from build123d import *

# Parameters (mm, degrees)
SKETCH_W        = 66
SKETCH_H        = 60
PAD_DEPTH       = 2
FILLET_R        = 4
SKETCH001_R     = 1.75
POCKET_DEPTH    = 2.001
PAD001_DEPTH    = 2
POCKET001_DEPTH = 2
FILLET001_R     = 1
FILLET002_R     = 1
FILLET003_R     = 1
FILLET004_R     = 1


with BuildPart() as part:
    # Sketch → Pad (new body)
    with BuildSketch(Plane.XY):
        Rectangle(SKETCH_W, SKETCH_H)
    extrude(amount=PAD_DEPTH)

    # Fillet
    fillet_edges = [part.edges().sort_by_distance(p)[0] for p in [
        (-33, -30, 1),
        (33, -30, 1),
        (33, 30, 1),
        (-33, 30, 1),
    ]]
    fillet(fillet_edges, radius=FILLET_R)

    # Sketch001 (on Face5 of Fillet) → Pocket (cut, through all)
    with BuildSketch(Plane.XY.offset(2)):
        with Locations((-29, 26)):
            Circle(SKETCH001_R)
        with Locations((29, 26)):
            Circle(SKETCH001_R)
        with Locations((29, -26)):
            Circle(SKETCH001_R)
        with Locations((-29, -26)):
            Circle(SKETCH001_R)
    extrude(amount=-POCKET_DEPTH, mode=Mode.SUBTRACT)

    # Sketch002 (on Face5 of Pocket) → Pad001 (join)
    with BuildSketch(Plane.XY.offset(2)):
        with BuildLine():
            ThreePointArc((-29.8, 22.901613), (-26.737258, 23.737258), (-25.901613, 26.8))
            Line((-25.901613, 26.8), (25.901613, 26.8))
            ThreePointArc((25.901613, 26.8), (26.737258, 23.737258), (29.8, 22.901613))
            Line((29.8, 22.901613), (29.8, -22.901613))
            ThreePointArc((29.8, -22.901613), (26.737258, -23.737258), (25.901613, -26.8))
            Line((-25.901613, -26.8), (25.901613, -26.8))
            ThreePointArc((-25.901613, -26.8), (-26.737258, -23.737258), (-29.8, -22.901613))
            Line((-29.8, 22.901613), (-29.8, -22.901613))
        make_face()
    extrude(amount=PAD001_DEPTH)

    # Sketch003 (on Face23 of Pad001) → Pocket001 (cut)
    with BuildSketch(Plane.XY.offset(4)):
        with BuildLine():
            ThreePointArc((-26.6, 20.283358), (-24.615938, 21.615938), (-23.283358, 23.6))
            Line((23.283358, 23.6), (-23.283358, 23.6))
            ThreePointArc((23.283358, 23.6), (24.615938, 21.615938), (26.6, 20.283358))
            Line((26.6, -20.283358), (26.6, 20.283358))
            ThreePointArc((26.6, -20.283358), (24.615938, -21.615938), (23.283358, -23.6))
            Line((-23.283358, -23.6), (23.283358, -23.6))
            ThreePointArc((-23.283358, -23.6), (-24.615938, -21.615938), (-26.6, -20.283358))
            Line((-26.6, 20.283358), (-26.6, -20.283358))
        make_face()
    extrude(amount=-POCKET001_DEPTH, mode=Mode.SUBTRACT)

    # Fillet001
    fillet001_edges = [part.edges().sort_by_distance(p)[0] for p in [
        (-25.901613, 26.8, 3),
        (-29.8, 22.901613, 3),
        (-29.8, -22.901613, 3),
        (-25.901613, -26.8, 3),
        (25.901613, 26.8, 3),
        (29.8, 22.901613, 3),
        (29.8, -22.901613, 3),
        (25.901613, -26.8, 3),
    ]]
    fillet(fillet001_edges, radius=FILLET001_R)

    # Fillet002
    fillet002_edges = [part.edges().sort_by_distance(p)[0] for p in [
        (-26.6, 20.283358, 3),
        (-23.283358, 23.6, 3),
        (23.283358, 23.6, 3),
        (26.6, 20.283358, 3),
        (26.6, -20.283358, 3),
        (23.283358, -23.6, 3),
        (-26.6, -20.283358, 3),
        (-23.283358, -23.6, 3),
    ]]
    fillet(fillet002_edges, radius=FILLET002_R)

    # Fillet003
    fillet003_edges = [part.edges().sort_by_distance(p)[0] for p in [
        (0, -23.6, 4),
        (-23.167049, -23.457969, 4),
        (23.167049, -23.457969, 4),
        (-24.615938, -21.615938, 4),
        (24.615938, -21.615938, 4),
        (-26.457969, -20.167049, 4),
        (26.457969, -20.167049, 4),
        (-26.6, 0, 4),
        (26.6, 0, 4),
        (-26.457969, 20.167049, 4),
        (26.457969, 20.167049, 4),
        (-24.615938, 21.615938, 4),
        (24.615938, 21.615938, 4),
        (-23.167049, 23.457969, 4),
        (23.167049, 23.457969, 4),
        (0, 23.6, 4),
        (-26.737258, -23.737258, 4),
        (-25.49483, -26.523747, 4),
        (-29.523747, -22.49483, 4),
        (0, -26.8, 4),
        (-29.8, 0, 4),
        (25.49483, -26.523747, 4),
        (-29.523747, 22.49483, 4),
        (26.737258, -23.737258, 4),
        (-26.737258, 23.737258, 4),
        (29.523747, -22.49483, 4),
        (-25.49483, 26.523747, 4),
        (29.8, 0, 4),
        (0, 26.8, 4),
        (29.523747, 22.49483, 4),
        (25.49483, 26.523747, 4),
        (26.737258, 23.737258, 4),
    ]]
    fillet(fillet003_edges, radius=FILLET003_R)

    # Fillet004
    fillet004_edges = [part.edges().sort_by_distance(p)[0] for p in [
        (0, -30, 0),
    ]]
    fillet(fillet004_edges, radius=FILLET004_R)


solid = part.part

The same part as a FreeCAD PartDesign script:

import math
import FreeCAD as App
import Part
import Sketcher

V = App.Vector
Q = App.Units.Quantity


def edges_at(feature, points):
    """Names of the edges that pass closest to the given points."""
    edges = feature.Shape.Edges
    near = lambda p: min(range(len(edges)), key=lambda i: edges[i].distToShape(Part.Vertex(*p))[0])
    return sorted({f"Edge{near(p) + 1}" for p in points})


def add_polygon(sketch, points):
    """Adds a closed chain of lines whose ends are joined by coincident constraints."""
    first, n = sketch.GeometryCount, len(points)
    for a, b in zip(points, points[1:] + points[:1]):
        sketch.addGeometry(Part.LineSegment(App.Vector(*a, 0), App.Vector(*b, 0)), False)
    for i in range(n):
        sketch.addConstraint(Sketcher.Constraint("Coincident", first + i, 2, first + (i + 1) % n, 1))

doc = App.newDocument("Part")
body = doc.addObject("PartDesign::Body", "Body")

# Sketch on XY plane
sketch1 = doc.addObject("Sketcher::SketchObject", "Sketch")
body.addObject(sketch1)
sketch1.AttachmentSupport = (doc.XY_Plane, [""])
sketch1.MapMode = "FlatFace"
add_polygon(sketch1, [(-33, 30), (-33, -30), (33, -30), (33, 30)])  # lines 0-3
sketch1.addConstraint([
    Sketcher.Constraint("Vertical", 0),
    Sketcher.Constraint("Horizontal", 1),
    Sketcher.Constraint("Vertical", 2),
    Sketcher.Constraint("Horizontal", 3),
    Sketcher.Constraint("Symmetric", 0, 2, 2, 2, -1, 1),
    Sketcher.Constraint("DistanceX", 1, 1, 1, 2, Q("66 mm")),
    Sketcher.Constraint("DistanceY", 0, 2, 0, 1, Q("60 mm")),
])
pad1 = doc.addObject("PartDesign::Pad", "Pad")
body.addObject(pad1)
pad1.Profile = sketch1
pad1.Length = 2
doc.recompute()

fillet = doc.addObject("PartDesign::Fillet", "Fillet")
body.addObject(fillet)
fillet.Base = (pad1, edges_at(pad1, [
    (-33, -30, 1),
    (33, -30, 1),
    (33, 30, 1),
    (-33, 30, 1),
]))
fillet.Radius = 4

# Sketch on XY plane
sketch2 = doc.addObject("Sketcher::SketchObject", "Sketch001")
body.addObject(sketch2)
sketch2.AttachmentSupport = (doc.XY_Plane, [""])
sketch2.MapMode = "FlatFace"
sketch2.AttachmentOffset = App.Placement(V(0, 0, 2), App.Rotation())
sketch2.addGeometry([
    Part.Circle(V(-29, 26, 0), V(0, 0, 1), 1.8),
    Part.Circle(V(29, 26, 0), V(0, 0, 1), 1.8),
    Part.Circle(V(29, -26, 0), V(0, 0, 1), 1.8),
    Part.Circle(V(-29, -26, 0), V(0, 0, 1), 1.8),
], False)
sketch2.addConstraint([
    Sketcher.Constraint("Equal", 0, 1),
    Sketcher.Constraint("Equal", 1, 2),
    Sketcher.Constraint("Equal", 2, 3),
    Sketcher.Constraint("Symmetric", 0, 3, 2, 3, -1, 1),
    Sketcher.Constraint("Symmetric", 1, 3, 3, 3, -1, 1),
    Sketcher.Constraint("Symmetric", 0, 3, 1, 3, -2),
    Sketcher.Constraint("Diameter", 0, Q("3.5 mm")),
    Sketcher.Constraint("DistanceX", 0, 3, -1, 1, Q("29 mm")),
    Sketcher.Constraint("DistanceY", -1, 1, 0, 3, Q("26 mm")),
])
pocket1 = doc.addObject("PartDesign::Pocket", "Pocket")
body.addObject(pocket1)
pocket1.Profile = sketch2
pocket1.Type = "ThroughAll"

# Sketch on XY plane
sketch3 = doc.addObject("Sketcher::SketchObject", "Sketch002")
body.addObject(sketch3)
sketch3.AttachmentSupport = (doc.XY_Plane, [""])
sketch3.MapMode = "FlatFace"
sketch3.AttachmentOffset = App.Placement(V(0, 0, 2), App.Rotation())
sketch3.addGeometry([
    Part.ArcOfCircle(Part.Circle(V(-29, 26, 0), V(0, 0, 1), 3.2), math.radians(-104), math.radians(14)),  # 0
    Part.LineSegment(V(-29.8, 22.9, 0), V(-29.8, -22.9, 0)),  # 1
    Part.ArcOfCircle(Part.Circle(V(-29, -26, 0), V(0, 0, 1), 3.2), math.radians(-14), math.radians(104)),  # 2
    Part.LineSegment(V(-25.9, -26.8, 0), V(25.9, -26.8, 0)),  # 3
    Part.ArcOfCircle(Part.Circle(V(29, -26, 0), V(0, 0, 1), 3.2), math.radians(76), math.radians(194)),  # 4
    Part.LineSegment(V(29.8, -22.9, 0), V(29.8, 22.9, 0)),  # 5
    Part.ArcOfCircle(Part.Circle(V(29, 26, 0), V(0, 0, 1), 3.2), math.radians(166), math.radians(284)),  # 6
    Part.LineSegment(V(25.9, 26.8, 0), V(-25.9, 26.8, 0)),  # 7
], False)
sketch3.addConstraint([
    Sketcher.Constraint("Coincident", 0, 1, 1, 1),
    Sketcher.Constraint("Coincident", 1, 2, 2, 2),
    Sketcher.Constraint("Coincident", 2, 1, 3, 1),
    Sketcher.Constraint("Coincident", 3, 2, 4, 2),
    Sketcher.Constraint("Coincident", 4, 1, 5, 1),
    Sketcher.Constraint("Coincident", 5, 2, 6, 2),
    Sketcher.Constraint("Coincident", 6, 1, 7, 1),
    Sketcher.Constraint("Coincident", 7, 2, 0, 2),
    Sketcher.Constraint("Vertical", 1),
    Sketcher.Constraint("Horizontal", 3),
    Sketcher.Constraint("Vertical", 5),
    Sketcher.Constraint("Horizontal", 7),
    Sketcher.Constraint("Equal", 0, 2),
    Sketcher.Constraint("Equal", 2, 4),
    Sketcher.Constraint("Equal", 4, 6),
    Sketcher.Constraint("Symmetric", 0, 3, 4, 3, -1, 1),
    Sketcher.Constraint("Symmetric", 2, 3, 6, 3, -1, 1),
    Sketcher.Constraint("Symmetric", 2, 3, 4, 3, -2),
    Sketcher.Constraint("Horizontal", 1, 2, 4, 1),
    Sketcher.Constraint("Vertical", 3, 2, 6, 1),
    Sketcher.Constraint("Radius", 0, Q("3.2 mm")),
    Sketcher.Constraint("DistanceX", 0, 3, -1, 1, Q("29 mm")),
    Sketcher.Constraint("DistanceY", -1, 1, 0, 3, Q("26 mm")),
    Sketcher.Constraint("DistanceX", 0, 1, -1, 1, Q("29.8 mm")),
    Sketcher.Constraint("DistanceY", 2, 1, -1, 1, Q("26.8 mm")),
])
pad2 = doc.addObject("PartDesign::Pad", "Pad001")
body.addObject(pad2)
pad2.Profile = sketch3
pad2.Length = 2

# Sketch on XY plane
sketch4 = doc.addObject("Sketcher::SketchObject", "Sketch003")
body.addObject(sketch4)
sketch4.AttachmentSupport = (doc.XY_Plane, [""])
sketch4.MapMode = "FlatFace"
sketch4.AttachmentOffset = App.Placement(V(0, 0, 4), App.Rotation())
sketch4.addGeometry([
    Part.ArcOfCircle(Part.Circle(V(-29, 26, 0), V(0, 0, 1), 6.2), math.radians(-67), math.radians(-23)),  # 0
    Part.LineSegment(V(-26.6, 20.3, 0), V(-26.6, -20.3, 0)),  # 1
    Part.ArcOfCircle(Part.Circle(V(-29, -26, 0), V(0, 0, 1), 6.2), math.radians(23), math.radians(67)),  # 2
    Part.LineSegment(V(-23.3, -23.6, 0), V(23.3, -23.6, 0)),  # 3
    Part.ArcOfCircle(Part.Circle(V(29, -26, 0), V(0, 0, 1), 6.2), math.radians(113), math.radians(157)),  # 4
    Part.LineSegment(V(26.6, -20.3, 0), V(26.6, 20.3, 0)),  # 5
    Part.ArcOfCircle(Part.Circle(V(29, 26, 0), V(0, 0, 1), 6.2), math.radians(-157), math.radians(-113)),  # 6
    Part.LineSegment(V(23.3, 23.6, 0), V(-23.3, 23.6, 0)),  # 7
], False)
sketch4.addConstraint([
    Sketcher.Constraint("Coincident", 0, 1, 1, 1),
    Sketcher.Constraint("Coincident", 1, 2, 2, 2),
    Sketcher.Constraint("Coincident", 2, 1, 3, 1),
    Sketcher.Constraint("Coincident", 3, 2, 4, 2),
    Sketcher.Constraint("Coincident", 4, 1, 5, 1),
    Sketcher.Constraint("Coincident", 5, 2, 6, 2),
    Sketcher.Constraint("Coincident", 6, 1, 7, 1),
    Sketcher.Constraint("Coincident", 7, 2, 0, 2),
    Sketcher.Constraint("Vertical", 1),
    Sketcher.Constraint("Horizontal", 3),
    Sketcher.Constraint("Vertical", 5),
    Sketcher.Constraint("Horizontal", 7),
    Sketcher.Constraint("Equal", 0, 2),
    Sketcher.Constraint("Equal", 2, 4),
    Sketcher.Constraint("Equal", 4, 6),
    Sketcher.Constraint("Symmetric", 0, 3, 4, 3, -1, 1),
    Sketcher.Constraint("Symmetric", 2, 3, 6, 3, -1, 1),
    Sketcher.Constraint("Symmetric", 2, 3, 4, 3, -2),
    Sketcher.Constraint("Horizontal", 1, 2, 4, 1),
    Sketcher.Constraint("Vertical", 3, 2, 6, 1),
    Sketcher.Constraint("DistanceX", 0, 1, -1, 1, Q("26.6 mm")),
    Sketcher.Constraint("DistanceY", 2, 1, -1, 1, Q("23.6 mm")),
    Sketcher.Constraint("Radius", 0, Q("6.199996 mm")),
    Sketcher.Constraint("DistanceX", 3, 1, 3, 2, Q("46.566716 mm")),
    Sketcher.Constraint("DistanceY", 1, 2, 1, 1, Q("40.566716 mm")),
])
pocket2 = doc.addObject("PartDesign::Pocket", "Pocket001")
body.addObject(pocket2)
pocket2.Profile = sketch4
pocket2.Length = 2
doc.recompute()

fillet2 = doc.addObject("PartDesign::Fillet", "Fillet001")
body.addObject(fillet2)
fillet2.Base = (pocket2, edges_at(pocket2, [
    (-25.902, 26.8, 3),
    (-29.8, 22.902, 3),
    (-29.8, -22.902, 3),
    (-25.902, -26.8, 3),
    (25.902, 26.8, 3),
    (29.8, 22.902, 3),
    (29.8, -22.902, 3),
    (25.902, -26.8, 3),
]))
fillet2.Radius = 1
doc.recompute()

fillet3 = doc.addObject("PartDesign::Fillet", "Fillet002")
body.addObject(fillet3)
fillet3.Base = (fillet2, edges_at(fillet2, [
    (-26.6, 20.283, 3),
    (-23.283, 23.6, 3),
    (23.283, 23.6, 3),
    (26.6, 20.283, 3),
    (26.6, -20.283, 3),
    (23.283, -23.6, 3),
    (-26.6, -20.283, 3),
    (-23.283, -23.6, 3),
]))
fillet3.Radius = 1
doc.recompute()

fillet4 = doc.addObject("PartDesign::Fillet", "Fillet003")
body.addObject(fillet4)
fillet4.Base = (fillet3, edges_at(fillet3, [
    (0, -23.6, 4),
    (-23.167, -23.458, 4),
    (23.167, -23.458, 4),
    (-24.616, -21.616, 4),
    (24.616, -21.616, 4),
    (-26.458, -20.167, 4),
    (26.458, -20.167, 4),
    (-26.6, 0, 4),
    (26.6, 0, 4),
    (-26.458, 20.167, 4),
    (26.458, 20.167, 4),
    (-24.616, 21.616, 4),
    (24.616, 21.616, 4),
    (-23.167, 23.458, 4),
    (23.167, 23.458, 4),
    (0, 23.6, 4),
    (-26.737, -23.737, 4),
    (-25.495, -26.524, 4),
    (-29.524, -22.495, 4),
    (0, -26.8, 4),
    (-29.8, 0, 4),
    (25.495, -26.524, 4),
    (-29.524, 22.495, 4),
    (26.737, -23.737, 4),
    (-26.737, 23.737, 4),
    (29.524, -22.495, 4),
    (-25.495, 26.524, 4),
    (29.8, 0, 4),
    (0, 26.8, 4),
    (29.524, 22.495, 4),
    (25.495, 26.524, 4),
    (26.737, 23.737, 4),
]))
fillet4.Radius = 1
doc.recompute()

fillet5 = doc.addObject("PartDesign::Fillet", "Fillet004")
body.addObject(fillet5)
fillet5.Base = (fillet4, edges_at(fillet4, [(0, -30, 0)]))
fillet5.Radius = 1

doc.recompute()
